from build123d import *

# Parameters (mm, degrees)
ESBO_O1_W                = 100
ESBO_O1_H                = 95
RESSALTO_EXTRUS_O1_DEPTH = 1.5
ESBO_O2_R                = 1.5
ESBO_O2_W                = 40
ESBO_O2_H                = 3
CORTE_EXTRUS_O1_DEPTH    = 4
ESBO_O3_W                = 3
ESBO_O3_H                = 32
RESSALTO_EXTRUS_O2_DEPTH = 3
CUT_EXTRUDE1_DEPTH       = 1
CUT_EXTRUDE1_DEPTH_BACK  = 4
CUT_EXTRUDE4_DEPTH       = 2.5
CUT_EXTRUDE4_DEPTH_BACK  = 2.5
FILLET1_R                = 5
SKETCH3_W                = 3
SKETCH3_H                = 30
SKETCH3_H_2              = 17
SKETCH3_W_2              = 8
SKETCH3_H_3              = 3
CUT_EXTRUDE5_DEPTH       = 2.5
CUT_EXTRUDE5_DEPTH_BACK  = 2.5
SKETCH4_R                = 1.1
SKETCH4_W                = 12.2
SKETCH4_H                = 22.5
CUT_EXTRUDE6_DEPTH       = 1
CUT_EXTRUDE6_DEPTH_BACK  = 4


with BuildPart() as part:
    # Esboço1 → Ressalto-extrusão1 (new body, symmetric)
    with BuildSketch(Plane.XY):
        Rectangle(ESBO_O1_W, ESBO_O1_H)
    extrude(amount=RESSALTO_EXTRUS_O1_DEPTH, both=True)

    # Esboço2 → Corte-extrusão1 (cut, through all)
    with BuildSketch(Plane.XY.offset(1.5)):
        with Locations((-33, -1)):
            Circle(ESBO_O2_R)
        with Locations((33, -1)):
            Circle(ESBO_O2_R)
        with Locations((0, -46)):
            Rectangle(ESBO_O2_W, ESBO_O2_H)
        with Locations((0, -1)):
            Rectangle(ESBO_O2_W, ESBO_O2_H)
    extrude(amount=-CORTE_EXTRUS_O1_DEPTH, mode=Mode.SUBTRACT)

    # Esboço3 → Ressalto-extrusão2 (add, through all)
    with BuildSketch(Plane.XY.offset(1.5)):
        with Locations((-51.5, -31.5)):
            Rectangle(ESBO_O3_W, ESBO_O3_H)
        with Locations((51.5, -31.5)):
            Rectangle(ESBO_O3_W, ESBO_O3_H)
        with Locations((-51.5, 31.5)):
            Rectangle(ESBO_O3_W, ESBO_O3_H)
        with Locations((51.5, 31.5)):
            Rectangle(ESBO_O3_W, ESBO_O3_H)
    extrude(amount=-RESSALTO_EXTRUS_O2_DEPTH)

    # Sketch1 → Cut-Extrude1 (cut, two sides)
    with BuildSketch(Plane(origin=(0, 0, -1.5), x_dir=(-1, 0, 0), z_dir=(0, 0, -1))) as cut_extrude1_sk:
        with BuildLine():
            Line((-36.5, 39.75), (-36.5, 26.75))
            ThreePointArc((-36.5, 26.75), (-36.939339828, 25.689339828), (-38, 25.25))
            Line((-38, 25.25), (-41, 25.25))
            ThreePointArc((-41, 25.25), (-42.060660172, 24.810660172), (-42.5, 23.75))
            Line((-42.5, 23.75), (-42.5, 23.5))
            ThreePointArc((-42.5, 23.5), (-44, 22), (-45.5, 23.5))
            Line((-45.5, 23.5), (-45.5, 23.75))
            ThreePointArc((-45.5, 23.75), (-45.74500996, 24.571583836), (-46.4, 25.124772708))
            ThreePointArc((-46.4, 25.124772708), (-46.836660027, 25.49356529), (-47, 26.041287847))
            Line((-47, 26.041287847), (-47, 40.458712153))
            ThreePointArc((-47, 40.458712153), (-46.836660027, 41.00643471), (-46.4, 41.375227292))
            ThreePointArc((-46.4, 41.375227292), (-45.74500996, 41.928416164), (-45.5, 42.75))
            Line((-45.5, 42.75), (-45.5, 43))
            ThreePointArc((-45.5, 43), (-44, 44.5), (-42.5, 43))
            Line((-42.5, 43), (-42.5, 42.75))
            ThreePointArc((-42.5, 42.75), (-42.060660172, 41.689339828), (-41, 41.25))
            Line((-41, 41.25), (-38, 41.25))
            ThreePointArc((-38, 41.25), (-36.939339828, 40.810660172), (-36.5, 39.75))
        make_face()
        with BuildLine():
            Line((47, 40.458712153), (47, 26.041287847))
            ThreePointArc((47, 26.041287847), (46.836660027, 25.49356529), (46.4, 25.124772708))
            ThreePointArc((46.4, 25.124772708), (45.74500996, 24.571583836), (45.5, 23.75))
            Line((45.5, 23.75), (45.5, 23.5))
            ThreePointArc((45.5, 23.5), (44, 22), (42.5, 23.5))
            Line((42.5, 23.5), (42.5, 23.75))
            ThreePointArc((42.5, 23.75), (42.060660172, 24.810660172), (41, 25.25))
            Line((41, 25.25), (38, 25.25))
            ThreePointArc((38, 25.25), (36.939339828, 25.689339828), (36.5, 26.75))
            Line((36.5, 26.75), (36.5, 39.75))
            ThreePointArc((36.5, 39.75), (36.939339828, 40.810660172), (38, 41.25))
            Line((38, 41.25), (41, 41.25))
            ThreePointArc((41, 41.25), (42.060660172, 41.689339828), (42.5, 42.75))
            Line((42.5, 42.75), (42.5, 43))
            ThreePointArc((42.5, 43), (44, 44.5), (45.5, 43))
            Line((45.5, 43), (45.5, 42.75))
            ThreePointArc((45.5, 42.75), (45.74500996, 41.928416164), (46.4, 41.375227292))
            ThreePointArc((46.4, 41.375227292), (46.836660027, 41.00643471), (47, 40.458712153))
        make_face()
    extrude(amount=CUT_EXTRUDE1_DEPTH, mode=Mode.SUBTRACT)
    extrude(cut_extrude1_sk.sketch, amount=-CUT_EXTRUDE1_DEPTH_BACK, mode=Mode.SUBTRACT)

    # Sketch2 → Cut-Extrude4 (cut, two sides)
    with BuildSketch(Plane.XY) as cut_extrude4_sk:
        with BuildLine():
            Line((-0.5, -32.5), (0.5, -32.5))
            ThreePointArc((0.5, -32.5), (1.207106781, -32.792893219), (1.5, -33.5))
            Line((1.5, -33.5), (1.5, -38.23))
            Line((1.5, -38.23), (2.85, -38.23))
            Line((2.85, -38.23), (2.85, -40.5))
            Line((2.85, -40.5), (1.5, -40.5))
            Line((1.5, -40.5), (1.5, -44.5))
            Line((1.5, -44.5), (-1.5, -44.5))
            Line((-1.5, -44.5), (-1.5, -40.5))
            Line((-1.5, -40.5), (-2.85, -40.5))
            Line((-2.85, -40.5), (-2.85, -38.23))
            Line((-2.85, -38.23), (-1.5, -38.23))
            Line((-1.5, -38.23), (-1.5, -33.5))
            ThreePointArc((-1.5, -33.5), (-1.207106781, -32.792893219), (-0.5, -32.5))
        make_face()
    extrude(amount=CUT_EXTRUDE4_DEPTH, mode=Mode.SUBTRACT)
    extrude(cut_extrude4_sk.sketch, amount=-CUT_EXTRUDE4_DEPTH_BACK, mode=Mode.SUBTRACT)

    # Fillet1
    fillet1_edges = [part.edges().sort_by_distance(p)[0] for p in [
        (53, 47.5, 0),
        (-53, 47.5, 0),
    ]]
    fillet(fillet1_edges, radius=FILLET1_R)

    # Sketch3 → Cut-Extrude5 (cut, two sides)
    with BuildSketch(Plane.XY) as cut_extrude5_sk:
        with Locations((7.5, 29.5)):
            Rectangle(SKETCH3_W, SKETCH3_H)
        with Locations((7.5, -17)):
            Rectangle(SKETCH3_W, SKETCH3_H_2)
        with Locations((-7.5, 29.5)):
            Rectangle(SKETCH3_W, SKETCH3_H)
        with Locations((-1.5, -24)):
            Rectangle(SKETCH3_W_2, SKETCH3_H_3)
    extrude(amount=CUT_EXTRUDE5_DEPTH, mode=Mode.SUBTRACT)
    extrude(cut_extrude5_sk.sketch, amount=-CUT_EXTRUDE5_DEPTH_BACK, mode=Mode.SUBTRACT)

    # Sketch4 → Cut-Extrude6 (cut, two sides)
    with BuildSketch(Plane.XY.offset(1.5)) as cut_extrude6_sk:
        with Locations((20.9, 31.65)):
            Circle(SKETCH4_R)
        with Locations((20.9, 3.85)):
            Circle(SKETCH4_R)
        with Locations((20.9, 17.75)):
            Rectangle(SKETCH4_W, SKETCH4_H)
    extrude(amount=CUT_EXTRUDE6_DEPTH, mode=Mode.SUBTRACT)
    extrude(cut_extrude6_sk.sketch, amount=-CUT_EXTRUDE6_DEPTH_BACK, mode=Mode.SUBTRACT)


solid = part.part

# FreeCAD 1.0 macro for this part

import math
import FreeCAD as App
import Part
import Sketcher


def edges_at(feature, points):
    """Names of the edges that pass closest to the given points."""
    edges = feature.Shape.Edges
    near = lambda p: min(range(len(edges)), key=lambda i: edges[i].distToShape(Part.Vertex(*p))[0])
    return sorted({f"Edge{near(p) + 1}" for p in points})

doc = App.newDocument("Part")
params = doc.addObject("Spreadsheet::Sheet", "Params")
for row, (alias, value) in enumerate([
    ("sketch1_width", "100 mm"),
    ("sketch1_height", "95 mm"),
    ("pad1_length", "3 mm"),
    ("sketch2_diameter", "3 mm"),
    ("sketch2_width", "40 mm"),
    ("sketch2_height", "3 mm"),
    ("sketch3_width", "3 mm"),
    ("sketch3_height", "32 mm"),
    ("pad2_length", "3 mm"),
    ("sketch4_radius", "1 mm"),
    ("sketch4_radius2", "1.5 mm"),
    ("sketch4_width", "3 mm"),
    ("sketch4_height", "13 mm"),
    ("sketch4_height2", "0.25 mm"),
    ("sketch5_radius", "1 mm"),
    ("sketch5_width", "1 mm"),
    ("sketch5_height", "4 mm"),
    ("sketch5_width2", "1.35 mm"),
    ("sketch5_height2", "4.73 mm"),
    ("fillet_radius", "5 mm"),
    ("sketch6_width", "3 mm"),
    ("sketch6_width2", "8 mm"),
    ("sketch6_height", "30 mm"),
    ("sketch6_height2", "17 mm"),
    ("sketch7_diameter", "2.2 mm"),
    ("sketch7_width", "12.2 mm"),
    ("sketch7_height", "22.5 mm"),
], start=1):
    params.set(f"A{row}", alias)
    params.set(f"B{row}", "=" + value)
    params.setAlias(f"B{row}", alias)

body = doc.addObject("PartDesign::Body", "Body")

# Sketch on XY plane
sketch1 = body.newObject("Sketcher::SketchObject", "Sketch")
sketch1.AttachmentSupport = (doc.getObject("XY_Plane"), [""])
sketch1.MapMode = "FlatFace"
sketch1.addGeometry([
    Part.LineSegment(App.Vector(-50, 47.5, 0), App.Vector(-50, -47.5, 0)),
    Part.LineSegment(App.Vector(-50, -47.5, 0), App.Vector(50, -47.5, 0)),
    Part.LineSegment(App.Vector(50, -47.5, 0), App.Vector(50, 47.5, 0)),
    Part.LineSegment(App.Vector(50, 47.5, 0), App.Vector(-50, 47.5, 0)),
], False)
sketch1.addConstraint([
    Sketcher.Constraint("Coincident", 0, 2, 1, 1),
    Sketcher.Constraint("Coincident", 1, 2, 2, 1),
    Sketcher.Constraint("Coincident", 2, 2, 3, 1),
    Sketcher.Constraint("Coincident", 3, 2, 0, 1),
    Sketcher.Constraint("Vertical", 0),
    Sketcher.Constraint("Horizontal", 1),
    Sketcher.Constraint("Vertical", 2),
    Sketcher.Constraint("Horizontal", 3),
    Sketcher.Constraint("Symmetric", 0, 2, 2, 2, -1, 1),
    Sketcher.Constraint("DistanceX", 1, 1, 1, 2, 100.0),
    Sketcher.Constraint("DistanceY", 0, 2, 0, 1, 95.0),
])
sketch1.setExpression("Constraints[9]", "Params.sketch1_width")
sketch1.setExpression("Constraints[10]", "Params.sketch1_height")
pad1 = body.newObject("PartDesign::Pad", "Pad")
pad1.Profile = sketch1
pad1.setExpression("Length", "Params.pad1_length")
pad1.Midplane = True

# Sketch on XY plane
sketch2 = body.newObject("Sketcher::SketchObject", "Sketch001")
sketch2.AttachmentSupport = (doc.getObject("XY_Plane"), [""])
sketch2.MapMode = "FlatFace"
sketch2.AttachmentOffset = App.Placement(App.Vector(0, 0, 1.5), App.Rotation())
sketch2.addGeometry([
    Part.Circle(App.Vector(-33, -1, 0), App.Vector(0, 0, 1), 1.5),  # 0
    Part.Circle(App.Vector(33, -1, 0), App.Vector(0, 0, 1), 1.5),  # 1
    Part.LineSegment(App.Vector(-20, -44.5, 0), App.Vector(-20, -47.5, 0)),  # 2
    Part.LineSegment(App.Vector(-20, -47.5, 0), App.Vector(20, -47.5, 0)),  # 3
    Part.LineSegment(App.Vector(20, -47.5, 0), App.Vector(20, -44.5, 0)),  # 4
    Part.LineSegment(App.Vector(20, -44.5, 0), App.Vector(-20, -44.5, 0)),  # 5
    Part.LineSegment(App.Vector(-20, 0.5, 0), App.Vector(-20, -2.5, 0)),  # 6
    Part.LineSegment(App.Vector(-20, -2.5, 0), App.Vector(20, -2.5, 0)),  # 7
    Part.LineSegment(App.Vector(20, -2.5, 0), App.Vector(20, 0.5, 0)),  # 8
    Part.LineSegment(App.Vector(20, 0.5, 0), App.Vector(-20, 0.5, 0)),  # 9
], False)
sketch2.addConstraint([
    Sketcher.Constraint("Coincident", 2, 2, 3, 1),
    Sketcher.Constraint("Coincident", 3, 2, 4, 1),
    Sketcher.Constraint("Coincident", 4, 2, 5, 1),
    Sketcher.Constraint("Coincident", 5, 2, 2, 1),
    Sketcher.Constraint("Coincident", 6, 2, 7, 1),
    Sketcher.Constraint("Coincident", 7, 2, 8, 1),
    Sketcher.Constraint("Coincident", 8, 2, 9, 1),
    Sketcher.Constraint("Coincident", 9, 2, 6, 1),
    Sketcher.Constraint("Vertical", 2),
    Sketcher.Constraint("Horizontal", 3),
    Sketcher.Constraint("Vertical", 4),
    Sketcher.Constraint("Horizontal", 5),
    Sketcher.Constraint("Vertical", 6),
    Sketcher.Constraint("Horizontal", 7),
    Sketcher.Constraint("Vertical", 8),
    Sketcher.Constraint("Horizontal", 9),
    Sketcher.Constraint("Equal", 0, 1),
    Sketcher.Constraint("Symmetric", 0, 3, 1, 3, -2),
    Sketcher.Constraint("Vertical", 5, 2, 6, 2),
    Sketcher.Constraint("Vertical", 4, 2, 7, 2),
    Sketcher.Constraint("Equal", 4, 6),
    Sketcher.Constraint("Diameter", 0, 3.0),
    Sketcher.Constraint("DistanceX", 3, 1, 3, 2, 40.0),
    Sketcher.Constraint("DistanceY", 2, 2, 2, 1, 3.0),
    Sketcher.Constraint("DistanceX", 0, 3, -1, 1, 33.0),
    Sketcher.Constraint("DistanceY", 0, 3, -1, 1, 1.0),
    Sketcher.Constraint("DistanceX", 2, 2, -1, 1, 20.0),
    Sketcher.Constraint("DistanceY", 5, 2, 6, 2, 42.0),
    Sketcher.Constraint("DistanceY", 2, 2, -1, 1, 47.5),
])
sketch2.setExpression("Constraints[21]", "Params.sketch2_diameter")
sketch2.setExpression("Constraints[22]", "Params.sketch2_width")
sketch2.setExpression("Constraints[23]", "Params.sketch2_height")
pocket1 = body.newObject("PartDesign::Pocket", "Pocket")
pocket1.Profile = sketch2
pocket1.Type = "ThroughAll"

# Sketch on XY plane
sketch3 = body.newObject("Sketcher::SketchObject", "Sketch002")
sketch3.AttachmentSupport = (doc.getObject("XY_Plane"), [""])
sketch3.MapMode = "FlatFace"
sketch3.AttachmentOffset = App.Placement(App.Vector(0, 0, 1.5), App.Rotation())
sketch3.addGeometry([
    Part.LineSegment(App.Vector(-53, -15.5, 0), App.Vector(-53, -47.5, 0)),  # 0
    Part.LineSegment(App.Vector(-53, -47.5, 0), App.Vector(-50, -47.5, 0)),  # 1
    Part.LineSegment(App.Vector(-50, -47.5, 0), App.Vector(-50, -15.5, 0)),  # 2
    Part.LineSegment(App.Vector(-50, -15.5, 0), App.Vector(-53, -15.5, 0)),  # 3
    Part.LineSegment(App.Vector(50, -15.5, 0), App.Vector(50, -47.5, 0)),  # 4
    Part.LineSegment(App.Vector(50, -47.5, 0), App.Vector(53, -47.5, 0)),  # 5
    Part.LineSegment(App.Vector(53, -47.5, 0), App.Vector(53, -15.5, 0)),  # 6
    Part.LineSegment(App.Vector(53, -15.5, 0), App.Vector(50, -15.5, 0)),  # 7
    Part.LineSegment(App.Vector(-53, 47.5, 0), App.Vector(-53, 15.5, 0)),  # 8
    Part.LineSegment(App.Vector(-53, 15.5, 0), App.Vector(-50, 15.5, 0)),  # 9
    Part.LineSegment(App.Vector(-50, 15.5, 0), App.Vector(-50, 47.5, 0)),  # 10
    Part.LineSegment(App.Vector(-50, 47.5, 0), App.Vector(-53, 47.5, 0)),  # 11
    Part.LineSegment(App.Vector(50, 47.5, 0), App.Vector(50, 15.5, 0)),  # 12
    Part.LineSegment(App.Vector(50, 15.5, 0), App.Vector(53, 15.5, 0)),  # 13
    Part.LineSegment(App.Vector(53, 15.5, 0), App.Vector(53, 47.5, 0)),  # 14
    Part.LineSegment(App.Vector(53, 47.5, 0), App.Vector(50, 47.5, 0)),  # 15
], False)
sketch3.addConstraint([
    Sketcher.Constraint("Coincident", 0, 2, 1, 1),
    Sketcher.Constraint("Coincident", 1, 2, 2, 1),
    Sketcher.Constraint("Coincident", 2, 2, 3, 1),
    Sketcher.Constraint("Coincident", 3, 2, 0, 1),
    Sketcher.Constraint("Coincident", 4, 2, 5, 1),
    Sketcher.Constraint("Coincident", 5, 2, 6, 1),
    Sketcher.Constraint("Coincident", 6, 2, 7, 1),
    Sketcher.Constraint("Coincident", 7, 2, 4, 1),
    Sketcher.Constraint("Coincident", 8, 2, 9, 1),
    Sketcher.Constraint("Coincident", 9, 2, 10, 1),
    Sketcher.Constraint("Coincident", 10, 2, 11, 1),
    Sketcher.Constraint("Coincident", 11, 2, 8, 1),
    Sketcher.Constraint("Coincident", 12, 2, 13, 1),
    Sketcher.Constraint("Coincident", 13, 2, 14, 1),
    Sketcher.Constraint("Coincident", 14, 2, 15, 1),
    Sketcher.Constraint("Coincident", 15, 2, 12, 1),
    Sketcher.Constraint("Vertical", 0),
    Sketcher.Constraint("Horizontal", 1),
    Sketcher.Constraint("Vertical", 2),
    Sketcher.Constraint("Horizontal", 3),
    Sketcher.Constraint("Vertical", 4),
    Sketcher.Constraint("Horizontal", 5),
    Sketcher.Constraint("Vertical", 6),
    Sketcher.Constraint("Horizontal", 7),
    Sketcher.Constraint("Vertical", 8),
    Sketcher.Constraint("Horizontal", 9),
    Sketcher.Constraint("Vertical", 10),
    Sketcher.Constraint("Horizontal", 11),
    Sketcher.Constraint("Vertical", 12),
    Sketcher.Constraint("Horizontal", 13),
    Sketcher.Constraint("Vertical", 14),
    Sketcher.Constraint("Horizontal", 15),
    Sketcher.Constraint("Symmetric", 6, 2, 8, 2, -1, 1),
    Sketcher.Constraint("Symmetric", 4, 2, 10, 2, -1, 1),
    Sketcher.Constraint("Symmetric", 2, 2, 12, 2, -1, 1),
    Sketcher.Constraint("Symmetric", 0, 2, 14, 2, -1, 1),
    Sketcher.Constraint("Symmetric", 1, 2, 4, 2, -2),
    Sketcher.Constraint("Symmetric", 3, 2, 6, 2, -2),
    Sketcher.Constraint("DistanceX", 1, 1, 1, 2, 3.0),
    Sketcher.Constraint("DistanceY", 0, 2, 0, 1, 32.0),
    Sketcher.Constraint("DistanceX", 0, 2, -1, 1, 53.0),
    Sketcher.Constraint("DistanceY", 3, 2, 8, 2, 31.0),
])
sketch3.setExpression("Constraints[38]", "Params.sketch3_width")
sketch3.setExpression("Constraints[39]", "Params.sketch3_height")
pad2 = body.newObject("PartDesign::Pad", "Pad001")
pad2.Profile = sketch3
pad2.setExpression("Length", "Params.pad2_length")
pad2.Reversed = True

# Sketch on XY plane
sketch4 = body.newObject("Sketcher::SketchObject", "Sketch003")
sketch4.AttachmentSupport = (doc.getObject("XY_Plane"), [""])
sketch4.MapMode = "FlatFace"
sketch4.AttachmentOffset = App.Placement(App.Vector(0, 0, -1.5), App.Rotation())
sketch4.addGeometry([
    Part.LineSegment(App.Vector(36.5, 26.75, 0), App.Vector(36.5, 39.75, 0)),  # 0
    Part.ArcOfCircle(Part.Circle(App.Vector(38, 39.75, 0), App.Vector(0, 0, 1), 1.5), math.radians(90), math.radians(180)),  # 1
    Part.LineSegment(App.Vector(38, 41.25, 0), App.Vector(41, 41.25, 0)),  # 2
    Part.ArcOfCircle(Part.Circle(App.Vector(41, 42.75, 0), App.Vector(0, 0, 1), 1.5), math.radians(-90), math.radians(0)),  # 3
    Part.LineSegment(App.Vector(42.5, 42.75, 0), App.Vector(42.5, 43, 0)),  # 4
    Part.ArcOfCircle(Part.Circle(App.Vector(44, 43, 0), App.Vector(0, 0, 1), 1.5), math.radians(0), math.radians(180)),  # 5
    Part.LineSegment(App.Vector(45.5, 43, 0), App.Vector(45.5, 42.75, 0)),  # 6
    Part.ArcOfCircle(Part.Circle(App.Vector(47, 42.75, 0), App.Vector(0, 0, 1), 1.5), math.radians(180), math.radians(246.421822)),  # 7
    Part.ArcOfCircle(Part.Circle(App.Vector(46, 40.458712, 0), App.Vector(0, 0, 1), 1), math.radians(0), math.radians(66.421822)),  # 8
    Part.LineSegment(App.Vector(47, 40.458712, 0), App.Vector(47, 26.041288, 0)),  # 9
    Part.ArcOfCircle(Part.Circle(App.Vector(46, 26.041288, 0), App.Vector(0, 0, 1), 1), math.radians(-66.421822), math.radians(0)),  # 10
    Part.ArcOfCircle(Part.Circle(App.Vector(47, 23.75, 0), App.Vector(0, 0, 1), 1.5), math.radians(113.578178), math.radians(180)),  # 11
    Part.LineSegment(App.Vector(45.5, 23.75, 0), App.Vector(45.5, 23.5, 0)),  # 12
    Part.ArcOfCircle(Part.Circle(App.Vector(44, 23.5, 0), App.Vector(0, 0, 1), 1.5), math.radians(180), math.radians(360)),  # 13
    Part.LineSegment(App.Vector(42.5, 23.5, 0), App.Vector(42.5, 23.75, 0)),  # 14
    Part.ArcOfCircle(Part.Circle(App.Vector(41, 23.75, 0), App.Vector(0, 0, 1), 1.5), math.radians(0), math.radians(90)),  # 15
    Part.LineSegment(App.Vector(41, 25.25, 0), App.Vector(38, 25.25, 0)),  # 16
    Part.ArcOfCircle(Part.Circle(App.Vector(38, 26.75, 0), App.Vector(0, 0, 1), 1.5), math.radians(180), math.radians(270)),  # 17
    Part.LineSegment(App.Vector(-47, 26.041288, 0), App.Vector(-47, 40.458712, 0)),  # 18
    Part.ArcOfCircle(Part.Circle(App.Vector(-46, 40.458712, 0), App.Vector(0, 0, 1), 1), math.radians(113.578178), math.radians(180)),  # 19
    Part.ArcOfCircle(Part.Circle(App.Vector(-47, 42.75, 0), App.Vector(0, 0, 1), 1.5), math.radians(-66.421822), math.radians(0)),  # 20
    Part.LineSegment(App.Vector(-45.5, 42.75, 0), App.Vector(-45.5, 43, 0)),  # 21
    Part.ArcOfCircle(Part.Circle(App.Vector(-44, 43, 0), App.Vector(0, 0, 1), 1.5), math.radians(0), math.radians(180)),  # 22
    Part.LineSegment(App.Vector(-42.5, 43, 0), App.Vector(-42.5, 42.75, 0)),  # 23
    Part.ArcOfCircle(Part.Circle(App.Vector(-41, 42.75, 0), App.Vector(0, 0, 1), 1.5), math.radians(180), math.radians(270)),  # 24
    Part.LineSegment(App.Vector(-41, 41.25, 0), App.Vector(-38, 41.25, 0)),  # 25
    Part.ArcOfCircle(Part.Circle(App.Vector(-38, 39.75, 0), App.Vector(0, 0, 1), 1.5), math.radians(0), math.radians(90)),  # 26
    Part.LineSegment(App.Vector(-36.5, 39.75, 0), App.Vector(-36.5, 26.75, 0)),  # 27
    Part.ArcOfCircle(Part.Circle(App.Vector(-38, 26.75, 0), App.Vector(0, 0, 1), 1.5), math.radians(-90), math.radians(0)),  # 28
    Part.LineSegment(App.Vector(-38, 25.25, 0), App.Vector(-41, 25.25, 0)),  # 29
    Part.ArcOfCircle(Part.Circle(App.Vector(-41, 23.75, 0), App.Vector(0, 0, 1), 1.5), math.radians(90), math.radians(180)),  # 30
    Part.LineSegment(App.Vector(-42.5, 23.75, 0), App.Vector(-42.5, 23.5, 0)),  # 31
    Part.ArcOfCircle(Part.Circle(App.Vector(-44, 23.5, 0), App.Vector(0, 0, 1), 1.5), math.radians(180), math.radians(360)),  # 32
    Part.LineSegment(App.Vector(-45.5, 23.5, 0), App.Vector(-45.5, 23.75, 0)),  # 33
    Part.ArcOfCircle(Part.Circle(App.Vector(-47, 23.75, 0), App.Vector(0, 0, 1), 1.5), math.radians(0), math.radians(66.421822)),  # 34
    Part.ArcOfCircle(Part.Circle(App.Vector(-46, 26.041288, 0), App.Vector(0, 0, 1), 1), math.radians(180), math.radians(246.421822)),  # 35
], False)
sketch4.addConstraint([
    Sketcher.Constraint("Tangent", 0, 2, 1, 2),
    Sketcher.Constraint("Tangent", 1, 1, 2, 1),
    Sketcher.Constraint("Tangent", 2, 2, 3, 1),
    Sketcher.Constraint("Tangent", 3, 2, 4, 1),
    Sketcher.Constraint("Tangent", 4, 2, 5, 2),
    Sketcher.Constraint("Tangent", 5, 1, 6, 1),
    Sketcher.Constraint("Tangent", 6, 2, 7, 1),
    Sketcher.Constraint("Tangent", 7, 2, 8, 2),
    Sketcher.Constraint("Tangent", 8, 1, 9, 1),
    Sketcher.Constraint("Tangent", 9, 2, 10, 2),
    Sketcher.Constraint("Tangent", 10, 1, 11, 1),
    Sketcher.Constraint("Tangent", 11, 2, 12, 1),
    Sketcher.Constraint("Tangent", 12, 2, 13, 2),
    Sketcher.Constraint("Tangent", 13, 1, 14, 1),
    Sketcher.Constraint("Tangent", 14, 2, 15, 1),
    Sketcher.Constraint("Tangent", 15, 2, 16, 1),
    Sketcher.Constraint("Tangent", 16, 2, 17, 2),
    Sketcher.Constraint("Tangent", 17, 1, 0, 1),
    Sketcher.Constraint("Tangent", 18, 2, 19, 2),
    Sketcher.Constraint("Tangent", 19, 1, 20, 1),
    Sketcher.Constraint("Tangent", 20, 2, 21, 1),
    Sketcher.Constraint("Tangent", 21, 2, 22, 2),
    Sketcher.Constraint("Tangent", 22, 1, 23, 1),
    Sketcher.Constraint("Tangent", 23, 2, 24, 1),
    Sketcher.Constraint("Tangent", 24, 2, 25, 1),
    Sketcher.Constraint("Tangent", 25, 2, 26, 2),
    Sketcher.Constraint("Tangent", 26, 1, 27, 1),
    Sketcher.Constraint("Tangent", 27, 2, 28, 2),
    Sketcher.Constraint("Tangent", 28, 1, 29, 1),
    Sketcher.Constraint("Tangent", 29, 2, 30, 1),
    Sketcher.Constraint("Tangent", 30, 2, 31, 1),
    Sketcher.Constraint("Tangent", 31, 2, 32, 2),
    Sketcher.Constraint("Tangent", 32, 1, 33, 1),
    Sketcher.Constraint("Tangent", 33, 2, 34, 1),
    Sketcher.Constraint("Tangent", 34, 2, 35, 2),
    Sketcher.Constraint("Tangent", 35, 1, 18, 1),
    Sketcher.Constraint("Vertical", 0),
    Sketcher.Constraint("Horizontal", 2),
    Sketcher.Constraint("Vertical", 4),
    Sketcher.Constraint("Vertical", 6),
    Sketcher.Constraint("Vertical", 9),
    Sketcher.Constraint("Vertical", 12),
    Sketcher.Constraint("Vertical", 14),
    Sketcher.Constraint("Horizontal", 16),
    Sketcher.Constraint("Vertical", 18),
    Sketcher.Constraint("Vertical", 21),
    Sketcher.Constraint("Vertical", 23),
    Sketcher.Constraint("Horizontal", 25),
    Sketcher.Constraint("Vertical", 27),
    Sketcher.Constraint("Horizontal", 29),
    Sketcher.Constraint("Vertical", 31),
    Sketcher.Constraint("Vertical", 33),
    Sketcher.Constraint("Equal", 1, 3),
    Sketcher.Constraint("Equal", 3, 5),
    Sketcher.Constraint("Equal", 5, 7),
    Sketcher.Constraint("Equal", 8, 10),
    Sketcher.Constraint("Equal", 7, 11),
    Sketcher.Constraint("Equal", 11, 13),
    Sketcher.Constraint("Equal", 13, 15),
    Sketcher.Constraint("Equal", 15, 17),
    Sketcher.Constraint("Equal", 10, 19),
    Sketcher.Constraint("Equal", 17, 20),
    Sketcher.Constraint("Equal", 20, 22),
    Sketcher.Constraint("Equal", 22, 24),
    Sketcher.Constraint("Equal", 24, 26),
    Sketcher.Constraint("Equal", 26, 28),
    Sketcher.Constraint("Equal", 28, 30),
    Sketcher.Constraint("Equal", 30, 32),
    Sketcher.Constraint("Equal", 32, 34),
    Sketcher.Constraint("Equal", 19, 35),
    Sketcher.Constraint("Symmetric", 8, 3, 19, 3, -2),
    Sketcher.Constraint("Symmetric", 5, 3, 22, 3, -2),
    Sketcher.Constraint("Symmetric", 1, 3, 26, 3, -2),
    Sketcher.Constraint("Symmetric", 15, 3, 30, 3, -2),
    Sketcher.Constraint("Horizontal", 3, 3, 7, 3),
    Sketcher.Constraint("Horizontal", 11, 3, 15, 3),
    Sketcher.Constraint("Horizontal", 13, 3, 32, 3),
    Sketcher.Constraint("Horizontal", 30, 3, 34, 3),
    Sketcher.Constraint("Vertical", 7, 3, 11, 3),
    Sketcher.Constraint("Vertical", 11, 3, 8, 1),
    Sketcher.Constraint("Equal", 6, 12),
    Sketcher.Constraint("Radius", 8, 1.0),
    Sketcher.Constraint("Radius", 1, 1.5),
    Sketcher.Constraint("DistanceX", 2, 1, 2, 2, 3.0),
    Sketcher.Constraint("DistanceY", 0, 1, 0, 2, 13.0),
    Sketcher.Constraint("DistanceX", -1, 1, 1, 3, 38.0),
    Sketcher.Constraint("DistanceY", -1, 1, 5, 3, 43.0),
    Sketcher.Constraint("DistanceY", 4, 1, 4, 2, 0.25),
])
sketch4.setExpression("Constraints[81]", "Params.sketch4_radius")
sketch4.setExpression("Constraints[82]", "Params.sketch4_radius2")
sketch4.setExpression("Constraints[83]", "Params.sketch4_width")
sketch4.setExpression("Constraints[84]", "Params.sketch4_height")
sketch4.setExpression("Constraints[87]", "Params.sketch4_height2")
pocket2 = body.newObject("PartDesign::Pocket", "Pocket001")
pocket2.Profile = sketch4
pocket2.Type = "ThroughAll"
pocket2.Midplane = True

# Sketch on XY plane
sketch5 = body.newObject("Sketcher::SketchObject", "Sketch004")
sketch5.AttachmentSupport = (doc.getObject("XY_Plane"), [""])
sketch5.MapMode = "FlatFace"
sketch5.addGeometry([
    Part.LineSegment(App.Vector(0.5, -32.5, 0), App.Vector(-0.5, -32.5, 0)),  # 0
    Part.ArcOfCircle(Part.Circle(App.Vector(-0.5, -33.5, 0), App.Vector(0, 0, 1), 1), math.radians(90), math.radians(180)),  # 1
    Part.LineSegment(App.Vector(-1.5, -33.5, 0), App.Vector(-1.5, -38.23, 0)),  # 2
    Part.LineSegment(App.Vector(-1.5, -38.23, 0), App.Vector(-2.85, -38.23, 0)),  # 3
    Part.LineSegment(App.Vector(-2.85, -38.23, 0), App.Vector(-2.85, -40.5, 0)),  # 4
    Part.LineSegment(App.Vector(-2.85, -40.5, 0), App.Vector(-1.5, -40.5, 0)),  # 5
    Part.LineSegment(App.Vector(-1.5, -40.5, 0), App.Vector(-1.5, -44.5, 0)),  # 6
    Part.LineSegment(App.Vector(-1.5, -44.5, 0), App.Vector(1.5, -44.5, 0)),  # 7
    Part.LineSegment(App.Vector(1.5, -44.5, 0), App.Vector(1.5, -40.5, 0)),  # 8
    Part.LineSegment(App.Vector(1.5, -40.5, 0), App.Vector(2.85, -40.5, 0)),  # 9
    Part.LineSegment(App.Vector(2.85, -40.5, 0), App.Vector(2.85, -38.23, 0)),  # 10
    Part.LineSegment(App.Vector(2.85, -38.23, 0), App.Vector(1.5, -38.23, 0)),  # 11
    Part.LineSegment(App.Vector(1.5, -38.23, 0), App.Vector(1.5, -33.5, 0)),  # 12
    Part.ArcOfCircle(Part.Circle(App.Vector(0.5, -33.5, 0), App.Vector(0, 0, 1), 1), math.radians(0), math.radians(90)),  # 13
], False)
sketch5.addConstraint([
    Sketcher.Constraint("Tangent", 0, 2, 1, 1),
    Sketcher.Constraint("Tangent", 1, 2, 2, 1),
    Sketcher.Constraint("Coincident", 2, 2, 3, 1),
    Sketcher.Constraint("Coincident", 3, 2, 4, 1),
    Sketcher.Constraint("Coincident", 4, 2, 5, 1),
    Sketcher.Constraint("Coincident", 5, 2, 6, 1),
    Sketcher.Constraint("Coincident", 6, 2, 7, 1),
    Sketcher.Constraint("Coincident", 7, 2, 8, 1),
    Sketcher.Constraint("Coincident", 8, 2, 9, 1),
    Sketcher.Constraint("Coincident", 9, 2, 10, 1),
    Sketcher.Constraint("Coincident", 10, 2, 11, 1),
    Sketcher.Constraint("Coincident", 11, 2, 12, 1),
    Sketcher.Constraint("Tangent", 12, 2, 13, 1),
    Sketcher.Constraint("Tangent", 13, 2, 0, 1),
    Sketcher.Constraint("Horizontal", 0),
    Sketcher.Constraint("Vertical", 2),
    Sketcher.Constraint("Horizontal", 3),
    Sketcher.Constraint("Vertical", 4),
    Sketcher.Constraint("Horizontal", 5),
    Sketcher.Constraint("Vertical", 6),
    Sketcher.Constraint("Horizontal", 7),
    Sketcher.Constraint("Vertical", 8),
    Sketcher.Constraint("Horizontal", 9),
    Sketcher.Constraint("Vertical", 10),
    Sketcher.Constraint("Horizontal", 11),
    Sketcher.Constraint("Vertical", 12),
    Sketcher.Constraint("Equal", 1, 13),
    Sketcher.Constraint("Symmetric", 5, 2, 8, 2, -2),
    Sketcher.Constraint("Symmetric", 3, 2, 10, 2, -2),
    Sketcher.Constraint("Vertical", 2, 2, 5, 2),
    Sketcher.Constraint("Vertical", 8, 2, 11, 2),
    Sketcher.Constraint("Radius", 1, 1.0),
    Sketcher.Constraint("DistanceX", 0, 2, 0, 1, 1.0),
    Sketcher.Constraint("DistanceY", 6, 2, 6, 1, 4.0),
    Sketcher.Constraint("DistanceY", 4, 2, 1, 2, 7.0),
    Sketcher.Constraint("DistanceX", 3, 2, 3, 1, 1.35),
    Sketcher.Constraint("DistanceY", 2, 2, 2, 1, 4.73),
    Sketcher.Constraint("DistanceY", 1, 3, -1, 1, 33.5),
])
sketch5.setExpression("Constraints[31]", "Params.sketch5_radius")
sketch5.setExpression("Constraints[32]", "Params.sketch5_width")
sketch5.setExpression("Constraints[33]", "Params.sketch5_height")
sketch5.setExpression("Constraints[35]", "Params.sketch5_width2")
sketch5.setExpression("Constraints[36]", "Params.sketch5_height2")
pocket3 = body.newObject("PartDesign::Pocket", "Pocket002")
pocket3.Profile = sketch5
pocket3.Type = "ThroughAll"
pocket3.Midplane = True
doc.recompute()

fillet = body.newObject("PartDesign::Fillet", "Fillet")
fillet.Base = (pocket3, edges_at(pocket3, [(53, 47.5, 0), (-53, 47.5, 0)]))
fillet.setExpression("Radius", "Params.fillet_radius")

# Sketch on XY plane
sketch6 = body.newObject("Sketcher::SketchObject", "Sketch005")
sketch6.AttachmentSupport = (doc.getObject("XY_Plane"), [""])
sketch6.MapMode = "FlatFace"
sketch6.addGeometry([
    Part.LineSegment(App.Vector(6, 44.5, 0), App.Vector(6, 14.5, 0)),  # 0
    Part.LineSegment(App.Vector(6, 14.5, 0), App.Vector(9, 14.5, 0)),  # 1
    Part.LineSegment(App.Vector(9, 14.5, 0), App.Vector(9, 44.5, 0)),  # 2
    Part.LineSegment(App.Vector(9, 44.5, 0), App.Vector(6, 44.5, 0)),  # 3
    Part.LineSegment(App.Vector(6, -8.5, 0), App.Vector(6, -25.5, 0)),  # 4
    Part.LineSegment(App.Vector(6, -25.5, 0), App.Vector(9, -25.5, 0)),  # 5
    Part.LineSegment(App.Vector(9, -25.5, 0), App.Vector(9, -8.5, 0)),  # 6
    Part.LineSegment(App.Vector(9, -8.5, 0), App.Vector(6, -8.5, 0)),  # 7
    Part.LineSegment(App.Vector(-9, 44.5, 0), App.Vector(-9, 14.5, 0)),  # 8
    Part.LineSegment(App.Vector(-9, 14.5, 0), App.Vector(-6, 14.5, 0)),  # 9
    Part.LineSegment(App.Vector(-6, 14.5, 0), App.Vector(-6, 44.5, 0)),  # 10
    Part.LineSegment(App.Vector(-6, 44.5, 0), App.Vector(-9, 44.5, 0)),  # 11
    Part.LineSegment(App.Vector(-5.5, -22.5, 0), App.Vector(-5.5, -25.5, 0)),  # 12
    Part.LineSegment(App.Vector(-5.5, -25.5, 0), App.Vector(2.5, -25.5, 0)),  # 13
    Part.LineSegment(App.Vector(2.5, -25.5, 0), App.Vector(2.5, -22.5, 0)),  # 14
    Part.LineSegment(App.Vector(2.5, -22.5, 0), App.Vector(-5.5, -22.5, 0)),  # 15
], False)
sketch6.addConstraint([
    Sketcher.Constraint("Coincident", 0, 2, 1, 1),
    Sketcher.Constraint("Coincident", 1, 2, 2, 1),
    Sketcher.Constraint("Coincident", 2, 2, 3, 1),
    Sketcher.Constraint("Coincident", 3, 2, 0, 1),
    Sketcher.Constraint("Coincident", 4, 2, 5, 1),
    Sketcher.Constraint("Coincident", 5, 2, 6, 1),
    Sketcher.Constraint("Coincident", 6, 2, 7, 1),
    Sketcher.Constraint("Coincident", 7, 2, 4, 1),
    Sketcher.Constraint("Coincident", 8, 2, 9, 1),
    Sketcher.Constraint("Coincident", 9, 2, 10, 1),
    Sketcher.Constraint("Coincident", 10, 2, 11, 1),
    Sketcher.Constraint("Coincident", 11, 2, 8, 1),
    Sketcher.Constraint("Coincident", 12, 2, 13, 1),
    Sketcher.Constraint("Coincident", 13, 2, 14, 1),
    Sketcher.Constraint("Coincident", 14, 2, 15, 1),
    Sketcher.Constraint("Coincident", 15, 2, 12, 1),
    Sketcher.Constraint("Vertical", 0),
    Sketcher.Constraint("Horizontal", 1),
    Sketcher.Constraint("Vertical", 2),
    Sketcher.Constraint("Horizontal", 3),
    Sketcher.Constraint("Vertical", 4),
    Sketcher.Constraint("Horizontal", 5),
    Sketcher.Constraint("Vertical", 6),
    Sketcher.Constraint("Horizontal", 7),
    Sketcher.Constraint("Vertical", 8),
    Sketcher.Constraint("Horizontal", 9),
    Sketcher.Constraint("Vertical", 10),
    Sketcher.Constraint("Horizontal", 11),
    Sketcher.Constraint("Vertical", 12),
    Sketcher.Constraint("Horizontal", 13),
    Sketcher.Constraint("Vertical", 14),
    Sketcher.Constraint("Horizontal", 15),
    Sketcher.Constraint("Symmetric", 1, 2, 8, 2, -2),
    Sketcher.Constraint("Symmetric", 3, 2, 10, 2, -2),
    Sketcher.Constraint("Horizontal", 5, 2, 12, 2),
    Sketcher.Constraint("Vertical", 3, 2, 4, 2),
    Sketcher.Constraint("Vertical", 2, 2, 5, 2),
    Sketcher.Constraint("Equal", 11, 12),
    Sketcher.Constraint("DistanceX", 1, 1, 1, 2, 3.0),
    Sketcher.Constraint("DistanceX", 13, 1, 13, 2, 8.0),
    Sketcher.Constraint("DistanceY", 0, 2, 0, 1, 30.0),
    Sketcher.Constraint("DistanceY", 4, 2, 4, 1, 17.0),
    Sketcher.Constraint("DistanceX", -1, 1, 0, 2, 6.0),
    Sketcher.Constraint("DistanceY", 4, 2, 0, 2, 40.0),
    Sketcher.Constraint("DistanceY", -1, 1, 0, 2, 14.5),
    Sketcher.Constraint("DistanceX", 12, 2, -1, 1, 5.5),
])
sketch6.setExpression("Constraints[38]", "Params.sketch6_width")
sketch6.setExpression("Constraints[39]", "Params.sketch6_width2")
sketch6.setExpression("Constraints[40]", "Params.sketch6_height")
sketch6.setExpression("Constraints[41]", "Params.sketch6_height2")
pocket4 = body.newObject("PartDesign::Pocket", "Pocket003")
pocket4.Profile = sketch6
pocket4.Type = "ThroughAll"
pocket4.Midplane = True

# Sketch on XY plane
sketch7 = body.newObject("Sketcher::SketchObject", "Sketch006")
sketch7.AttachmentSupport = (doc.getObject("XY_Plane"), [""])
sketch7.MapMode = "FlatFace"
sketch7.AttachmentOffset = App.Placement(App.Vector(0, 0, 1.5), App.Rotation())
sketch7.addGeometry([
    Part.Circle(App.Vector(20.9, 31.65, 0), App.Vector(0, 0, 1), 1.1),  # 0
    Part.Circle(App.Vector(20.9, 3.85, 0), App.Vector(0, 0, 1), 1.1),  # 1
    Part.LineSegment(App.Vector(14.8, 29, 0), App.Vector(14.8, 6.5, 0)),  # 2
    Part.LineSegment(App.Vector(14.8, 6.5, 0), App.Vector(27, 6.5, 0)),  # 3
    Part.LineSegment(App.Vector(27, 6.5, 0), App.Vector(27, 29, 0)),  # 4
    Part.LineSegment(App.Vector(27, 29, 0), App.Vector(14.8, 29, 0)),  # 5
], False)
sketch7.addConstraint([
    Sketcher.Constraint("Coincident", 2, 2, 3, 1),
    Sketcher.Constraint("Coincident", 3, 2, 4, 1),
    Sketcher.Constraint("Coincident", 4, 2, 5, 1),
    Sketcher.Constraint("Coincident", 5, 2, 2, 1),
    Sketcher.Constraint("Vertical", 2),
    Sketcher.Constraint("Horizontal", 3),
    Sketcher.Constraint("Vertical", 4),
    Sketcher.Constraint("Horizontal", 5),
    Sketcher.Constraint("Equal", 0, 1),
    Sketcher.Constraint("Vertical", 0, 3, 1, 3),
    Sketcher.Constraint("Diameter", 0, 2.2),
    Sketcher.Constraint("DistanceX", 3, 1, 3, 2, 12.2),
    Sketcher.Constraint("DistanceY", 2, 2, 2, 1, 22.5),
    Sketcher.Constraint("DistanceX", -1, 1, 3, 2, 27.0),
    Sketcher.Constraint("DistanceY", -1, 1, 4, 2, 29.0),
    Sketcher.Constraint("DistanceX", -1, 1, 0, 3, 20.9),
    Sketcher.Constraint("DistanceY", 1, 3, 0, 3, 27.8),
    Sketcher.Constraint("DistanceY", -1, 1, 0, 3, 31.65),
])
sketch7.setExpression("Constraints[10]", "Params.sketch7_diameter")
sketch7.setExpression("Constraints[11]", "Params.sketch7_width")
sketch7.setExpression("Constraints[12]", "Params.sketch7_height")
pocket5 = body.newObject("PartDesign::Pocket", "Pocket004")
pocket5.Profile = sketch7
pocket5.Type = "ThroughAll"
pocket5.Midplane = True

doc.recompute()
